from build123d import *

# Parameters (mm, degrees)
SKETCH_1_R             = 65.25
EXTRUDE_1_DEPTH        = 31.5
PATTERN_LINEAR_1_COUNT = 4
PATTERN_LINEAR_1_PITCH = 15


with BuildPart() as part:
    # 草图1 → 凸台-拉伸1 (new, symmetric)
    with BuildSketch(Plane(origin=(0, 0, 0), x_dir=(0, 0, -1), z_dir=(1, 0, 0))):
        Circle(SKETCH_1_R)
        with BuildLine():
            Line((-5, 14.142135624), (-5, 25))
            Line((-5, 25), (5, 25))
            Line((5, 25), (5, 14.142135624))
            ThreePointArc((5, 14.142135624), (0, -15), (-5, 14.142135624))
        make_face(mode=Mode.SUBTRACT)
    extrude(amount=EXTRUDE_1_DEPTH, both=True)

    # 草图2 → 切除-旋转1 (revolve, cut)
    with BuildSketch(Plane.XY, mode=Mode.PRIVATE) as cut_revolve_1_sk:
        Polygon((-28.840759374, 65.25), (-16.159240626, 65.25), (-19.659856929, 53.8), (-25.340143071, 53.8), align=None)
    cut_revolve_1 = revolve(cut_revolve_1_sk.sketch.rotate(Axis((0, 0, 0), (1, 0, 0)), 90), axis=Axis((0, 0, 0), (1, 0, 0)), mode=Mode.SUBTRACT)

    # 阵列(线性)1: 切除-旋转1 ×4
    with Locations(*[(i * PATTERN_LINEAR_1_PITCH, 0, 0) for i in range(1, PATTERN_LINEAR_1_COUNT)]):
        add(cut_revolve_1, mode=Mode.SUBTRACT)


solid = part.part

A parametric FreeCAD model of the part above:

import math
import FreeCAD as App
import Part
import Sketcher

V = App.Vector
Q = App.Units.Quantity

doc = App.newDocument("Part")
body = doc.addObject("PartDesign::Body", "Body")

sketch1 = body.newObject("Sketcher::SketchObject", "Sketch")
sketch1.AttachmentSupport = (doc.getObject("YZ_Plane"), [""])
sketch1.MapMode = "FlatFace"
sketch1.addGeometry([
    Part.Circle(V(0, 0, 0), V(0, 0, 1), 65.25),
    Part.ArcOfCircle(Part.Circle(V(0, 0, 0), V(0, 0, 1), 15), math.radians(19.471221), math.radians(340.528779)),
    Part.LineSegment(V(14.142136, 5, 0), V(25, 5, 0)),
    Part.LineSegment(V(25, 5, 0), V(25, -5, 0)),
    Part.LineSegment(V(25, -5, 0), V(14.142136, -5, 0)),
], False)
sketch1.addConstraint([
    Sketcher.Constraint("Coincident", 1, 1, 2, 1),
    Sketcher.Constraint("Coincident", 2, 2, 3, 1),
    Sketcher.Constraint("Coincident", 3, 2, 4, 1),
    Sketcher.Constraint("Coincident", 4, 2, 1, 2),
    Sketcher.Constraint("Horizontal", 2),
    Sketcher.Constraint("Vertical", 3),
    Sketcher.Constraint("Horizontal", 4),
    Sketcher.Constraint("Coincident", 0, 3, -1, 1),
    Sketcher.Constraint("Coincident", 1, 3, -1, 1),
    Sketcher.Constraint("Vertical", 1, 1, 4, 2),
    Sketcher.Constraint("Radius", 1, Q("15 mm")),
    Sketcher.Constraint("Diameter", 0, Q("130.5 mm")),
    Sketcher.Constraint("DistanceY", 3, 2, 3, 1, Q("10 mm")),
    Sketcher.Constraint("DistanceX", -1, 1, 2, 2, Q("25 mm")),
])
pad1 = body.newObject("PartDesign::Pad", "Pad")
pad1.Profile = sketch1
pad1.Length = 63
pad1.Midplane = True

sketch2 = body.newObject("Sketcher::SketchObject", "Sketch001")
sketch2.AttachmentSupport = (doc.getObject("XY_Plane"), [""])
sketch2.MapMode = "FlatFace"
sketch2.addGeometry([
    Part.LineSegment(V(-16.159241, 65.25, 0), V(-28.840759, 65.25, 0)),
    Part.LineSegment(V(-28.840759, 65.25, 0), V(-25.340143, 53.8, 0)),
    Part.LineSegment(V(-25.340143, 53.8, 0), V(-19.659857, 53.8, 0)),
    Part.LineSegment(V(-19.659857, 53.8, 0), V(-16.159241, 65.25, 0)),
], False)
sketch2.addConstraint([
    Sketcher.Constraint("Coincident", 0, 2, 1, 1),
    Sketcher.Constraint("Coincident", 1, 2, 2, 1),
    Sketcher.Constraint("Coincident", 2, 2, 3, 1),
    Sketcher.Constraint("Coincident", 3, 2, 0, 1),
    Sketcher.Constraint("Horizontal", 0),
    Sketcher.Constraint("Horizontal", 2),
    Sketcher.Constraint("Equal", 1, 3),
    Sketcher.Constraint("Angle", 1, Q("-73 deg")),
    Sketcher.Constraint("DistanceY", -1, 1, 1, 2, Q("53.8 mm")),
    Sketcher.Constraint("DistanceY", -1, 1, 0, 2, Q("65.25 mm")),
    Sketcher.Constraint("DistanceX", 0, 2, 0, 1, Q("12.681519 mm")),
    Sketcher.Constraint("DistanceX", 0, 2, -1, 1, Q("28.840759 mm")),
])
groove = body.newObject("PartDesign::Groove", "Groove")
groove.Profile = sketch2
groove.ReferenceAxis = (sketch2, ["H_Axis"])
groove.Angle = 360
doc.recompute()

linearpattern = body.newObject("PartDesign::LinearPattern", "LinearPattern")
linearpattern.Originals = [groove]
linearpattern.Direction = (doc.getObject("X_Axis"), [""])
linearpattern.Mode = "offset"
linearpattern.Offset = 15
linearpattern.Occurrences = 4
body.Tip = linearpattern

doc.recompute()
